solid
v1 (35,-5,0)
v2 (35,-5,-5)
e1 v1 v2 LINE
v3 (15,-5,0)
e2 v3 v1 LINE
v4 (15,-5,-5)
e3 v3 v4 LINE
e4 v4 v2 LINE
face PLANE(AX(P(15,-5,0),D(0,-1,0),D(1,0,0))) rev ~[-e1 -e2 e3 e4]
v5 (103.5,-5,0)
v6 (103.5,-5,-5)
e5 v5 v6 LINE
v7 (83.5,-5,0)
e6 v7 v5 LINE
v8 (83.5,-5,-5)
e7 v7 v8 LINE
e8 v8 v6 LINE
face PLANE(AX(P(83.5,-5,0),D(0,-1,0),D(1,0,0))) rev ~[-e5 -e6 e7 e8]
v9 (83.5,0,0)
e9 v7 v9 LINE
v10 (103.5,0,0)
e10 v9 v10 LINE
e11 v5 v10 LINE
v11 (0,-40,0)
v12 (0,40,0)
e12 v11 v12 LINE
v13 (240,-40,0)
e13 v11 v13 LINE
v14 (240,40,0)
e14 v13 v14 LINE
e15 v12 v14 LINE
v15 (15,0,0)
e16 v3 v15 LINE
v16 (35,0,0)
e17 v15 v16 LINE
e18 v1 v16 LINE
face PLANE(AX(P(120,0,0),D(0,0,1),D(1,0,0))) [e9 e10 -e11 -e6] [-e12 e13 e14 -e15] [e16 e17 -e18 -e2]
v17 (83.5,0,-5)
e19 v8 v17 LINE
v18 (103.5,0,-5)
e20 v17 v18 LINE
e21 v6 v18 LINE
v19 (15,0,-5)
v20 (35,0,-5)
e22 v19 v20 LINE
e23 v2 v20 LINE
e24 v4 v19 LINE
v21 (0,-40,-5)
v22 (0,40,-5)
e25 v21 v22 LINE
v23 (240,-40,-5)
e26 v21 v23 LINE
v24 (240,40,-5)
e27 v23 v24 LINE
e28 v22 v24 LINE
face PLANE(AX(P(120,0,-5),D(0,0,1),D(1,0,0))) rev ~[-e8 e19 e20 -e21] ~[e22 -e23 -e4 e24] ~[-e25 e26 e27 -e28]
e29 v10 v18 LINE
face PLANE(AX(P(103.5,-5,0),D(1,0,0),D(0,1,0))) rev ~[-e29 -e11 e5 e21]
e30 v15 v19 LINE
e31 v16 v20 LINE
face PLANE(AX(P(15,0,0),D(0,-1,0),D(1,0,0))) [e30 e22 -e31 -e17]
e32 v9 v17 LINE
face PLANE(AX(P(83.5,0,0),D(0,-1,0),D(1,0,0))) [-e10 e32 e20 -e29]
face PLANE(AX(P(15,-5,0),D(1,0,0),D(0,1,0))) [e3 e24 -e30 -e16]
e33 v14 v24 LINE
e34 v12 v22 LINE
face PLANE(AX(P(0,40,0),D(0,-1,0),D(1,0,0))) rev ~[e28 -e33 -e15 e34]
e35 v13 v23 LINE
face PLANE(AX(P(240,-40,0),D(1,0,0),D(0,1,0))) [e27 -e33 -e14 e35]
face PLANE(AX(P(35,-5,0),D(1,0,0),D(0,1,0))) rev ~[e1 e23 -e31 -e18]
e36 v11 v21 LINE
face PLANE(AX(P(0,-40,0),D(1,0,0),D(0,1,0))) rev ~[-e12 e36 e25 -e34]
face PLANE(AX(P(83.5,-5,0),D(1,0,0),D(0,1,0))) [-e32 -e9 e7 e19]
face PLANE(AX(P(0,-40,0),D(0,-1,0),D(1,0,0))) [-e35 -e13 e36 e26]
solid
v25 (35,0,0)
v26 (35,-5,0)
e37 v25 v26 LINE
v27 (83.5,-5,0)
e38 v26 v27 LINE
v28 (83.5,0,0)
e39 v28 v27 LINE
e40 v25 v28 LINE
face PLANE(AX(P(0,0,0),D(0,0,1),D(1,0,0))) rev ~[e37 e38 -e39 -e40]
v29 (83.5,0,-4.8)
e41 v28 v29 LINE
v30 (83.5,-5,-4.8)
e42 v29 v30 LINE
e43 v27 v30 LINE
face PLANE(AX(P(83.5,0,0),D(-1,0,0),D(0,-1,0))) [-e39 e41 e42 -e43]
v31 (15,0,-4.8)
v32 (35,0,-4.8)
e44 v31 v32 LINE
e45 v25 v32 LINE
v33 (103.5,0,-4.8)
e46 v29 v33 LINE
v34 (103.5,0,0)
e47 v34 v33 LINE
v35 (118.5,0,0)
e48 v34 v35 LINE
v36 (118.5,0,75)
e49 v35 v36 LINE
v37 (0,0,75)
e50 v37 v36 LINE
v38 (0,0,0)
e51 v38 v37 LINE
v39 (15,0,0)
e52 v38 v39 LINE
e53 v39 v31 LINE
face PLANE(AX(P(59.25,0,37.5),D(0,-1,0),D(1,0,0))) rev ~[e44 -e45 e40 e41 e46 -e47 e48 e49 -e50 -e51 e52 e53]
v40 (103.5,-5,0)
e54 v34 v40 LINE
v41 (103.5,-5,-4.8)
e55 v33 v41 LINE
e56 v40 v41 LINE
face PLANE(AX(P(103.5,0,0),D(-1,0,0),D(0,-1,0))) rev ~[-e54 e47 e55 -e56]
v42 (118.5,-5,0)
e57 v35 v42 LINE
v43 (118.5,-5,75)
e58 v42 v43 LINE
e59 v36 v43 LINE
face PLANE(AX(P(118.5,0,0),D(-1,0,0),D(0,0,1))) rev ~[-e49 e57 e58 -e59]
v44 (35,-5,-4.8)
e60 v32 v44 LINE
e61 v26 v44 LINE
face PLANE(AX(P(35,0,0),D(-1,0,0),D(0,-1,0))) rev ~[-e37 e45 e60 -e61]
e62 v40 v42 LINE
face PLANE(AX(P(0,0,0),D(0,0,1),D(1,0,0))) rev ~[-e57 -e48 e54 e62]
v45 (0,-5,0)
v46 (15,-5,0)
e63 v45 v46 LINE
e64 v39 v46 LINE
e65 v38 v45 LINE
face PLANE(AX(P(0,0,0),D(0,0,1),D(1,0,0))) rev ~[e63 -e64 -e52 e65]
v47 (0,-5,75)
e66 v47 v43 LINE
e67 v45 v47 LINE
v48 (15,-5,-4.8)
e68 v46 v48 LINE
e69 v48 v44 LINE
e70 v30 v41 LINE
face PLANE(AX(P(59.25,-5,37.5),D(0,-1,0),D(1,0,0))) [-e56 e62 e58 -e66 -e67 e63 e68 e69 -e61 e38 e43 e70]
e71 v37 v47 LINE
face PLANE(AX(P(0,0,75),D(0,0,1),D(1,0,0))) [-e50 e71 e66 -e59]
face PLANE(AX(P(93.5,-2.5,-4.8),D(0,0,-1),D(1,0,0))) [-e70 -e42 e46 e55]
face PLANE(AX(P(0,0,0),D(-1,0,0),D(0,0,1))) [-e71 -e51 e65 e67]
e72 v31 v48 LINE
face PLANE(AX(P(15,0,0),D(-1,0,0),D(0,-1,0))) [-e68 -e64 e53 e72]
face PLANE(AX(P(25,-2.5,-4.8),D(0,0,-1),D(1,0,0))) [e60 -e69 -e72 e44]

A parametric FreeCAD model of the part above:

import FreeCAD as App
import Part
import Sketcher
from FreeCAD import Vector
Q = App.Units.Quantity


def add_polygon(sketch, points):
    """Adds a closed chain of lines whose ends are joined by coincident constraints."""
    first, n = sketch.GeometryCount, len(points)
    for a, b in zip(points, points[1:] + points[:1]):
        sketch.addGeometry(Part.LineSegment(App.Vector(*a, 0), App.Vector(*b, 0)), False)
    for i in range(n):
        sketch.addConstraint(Sketcher.Constraint("Coincident", first + i, 2, first + (i + 1) % n, 1))

doc = App.newDocument("Part")
body = doc.addObject("PartDesign::Body", "Body")

sketch1 = doc.addObject("Sketcher::SketchObject", "Sketch")
body.addObject(sketch1)
sketch1.AttachmentSupport = (doc.XZ_Plane, [""])
sketch1.MapMode = "FlatFace"
add_polygon(sketch1, [(0, 75), (0, 0), (118, 0), (118, 75)])
sketch1.addConstraint([
    Sketcher.Constraint("Vertical", 0),
    Sketcher.Constraint("Horizontal", 1),
    Sketcher.Constraint("Vertical", 2),
    Sketcher.Constraint("Horizontal", 3),
    Sketcher.Constraint("Coincident", 0, 2, -1, 1),
    Sketcher.Constraint("DistanceY", 0, 2, 0, 1, Q("75 mm")),
    Sketcher.Constraint("DistanceX", 1, 1, 1, 2, Q("118.5 mm")),
])
pad1 = doc.addObject("PartDesign::Pad", "Pad")
body.addObject(pad1)
pad1.Profile = sketch1
pad1.Length = 5

sketch2 = doc.addObject("Sketcher::SketchObject", "Sketch001")
body.addObject(sketch2)
sketch2.AttachmentSupport = (doc.XY_Plane, [""])
sketch2.MapMode = "FlatFace"
add_polygon(sketch2, [(15, -5), (15, 0), (35, 0), (35, -5)])
add_polygon(sketch2, [(84, -5), (84, 0), (104, 0), (104, -5)])
sketch2.addConstraint([
    Sketcher.Constraint("Vertical", 0),
    Sketcher.Constraint("Horizontal", 1),
    Sketcher.Constraint("Vertical", 2),
    Sketcher.Constraint("Horizontal", 3),
    Sketcher.Constraint("Vertical", 4),
    Sketcher.Constraint("Horizontal", 5),
    Sketcher.Constraint("Vertical", 6),
    Sketcher.Constraint("Horizontal", 7),
    Sketcher.Constraint("PointOnObject", 0, 2, -1),
    Sketcher.Constraint("PointOnObject", 4, 2, -1),
    Sketcher.Constraint("Horizontal", 3, 2, 6, 2),
    Sketcher.Constraint("Equal", 3, 5),
    Sketcher.Constraint("DistanceX", 1, 1, 1, 2, Q("20 mm")),
    Sketcher.Constraint("DistanceY", 0, 1, 0, 2, Q("5 mm")),
    Sketcher.Constraint("DistanceX", -1, 1, 0, 2, Q("15 mm")),
    Sketcher.Constraint("DistanceX", -1, 1, 4, 2, Q("83.5 mm")),
])
pad2 = doc.addObject("PartDesign::Pad", "Pad001")
body.addObject(pad2)
pad2.Profile = sketch2
pad2.Length = 4.8
pad2.Reversed = True
body2 = doc.addObject("PartDesign::Body", "Body001")

sketch3 = doc.addObject("Sketcher::SketchObject", "Sketch002")
body2.addObject(sketch3)
sketch3.AttachmentSupport = (doc.getObject("XY_Plane001"), [""])
sketch3.MapMode = "FlatFace"
add_polygon(sketch3, [(0, 40), (0, -40), (240, -40), (240, 40)])
add_polygon(sketch3, [(35, -5), (15, -5), (15, 0), (35, 0)])
add_polygon(sketch3, [(104, -5), (84, -5), (84, 0), (104, 0)])
sketch3.addConstraint([
    Sketcher.Constraint("Vertical", 0),
    Sketcher.Constraint("Horizontal", 1),
    Sketcher.Constraint("Vertical", 2),
    Sketcher.Constraint("Horizontal", 3),
    Sketcher.Constraint("Horizontal", 4),
    Sketcher.Constraint("Vertical", 5),
    Sketcher.Constraint("Horizontal", 6),
    Sketcher.Constraint("Vertical", 7),
    Sketcher.Constraint("Horizontal", 8),
    Sketcher.Constraint("Vertical", 9),
    Sketcher.Constraint("Horizontal", 10),
    Sketcher.Constraint("Vertical", 11),
    Sketcher.Constraint("Symmetric", 0, 2, 3, 2, -1, 1),
    Sketcher.Constraint("PointOnObject", 5, 2, -1),
    Sketcher.Constraint("PointOnObject", 9, 2, -1),
    Sketcher.Constraint("Horizontal", 7, 2, 8, 2),
    Sketcher.Constraint("Equal", 6, 8),
    Sketcher.Constraint("DistanceX", 1, 1, 1, 2, Q("240 mm")),
    Sketcher.Constraint("DistanceX", 4, 2, 4, 1, Q("20 mm")),
    Sketcher.Constraint("DistanceY", 0, 2, 0, 1, Q("80 mm")),
    Sketcher.Constraint("DistanceY", 5, 1, 5, 2, Q("5 mm")),
    Sketcher.Constraint("DistanceX", -1, 1, 4, 2, Q("15 mm")),
    Sketcher.Constraint("DistanceX", -1, 1, 8, 2, Q("83.5 mm")),
])
pad3 = doc.addObject("PartDesign::Pad", "Pad002")
body2.addObject(pad3)
pad3.Profile = sketch3
pad3.Length = 5
pad3.Reversed = True

doc.recompute()
